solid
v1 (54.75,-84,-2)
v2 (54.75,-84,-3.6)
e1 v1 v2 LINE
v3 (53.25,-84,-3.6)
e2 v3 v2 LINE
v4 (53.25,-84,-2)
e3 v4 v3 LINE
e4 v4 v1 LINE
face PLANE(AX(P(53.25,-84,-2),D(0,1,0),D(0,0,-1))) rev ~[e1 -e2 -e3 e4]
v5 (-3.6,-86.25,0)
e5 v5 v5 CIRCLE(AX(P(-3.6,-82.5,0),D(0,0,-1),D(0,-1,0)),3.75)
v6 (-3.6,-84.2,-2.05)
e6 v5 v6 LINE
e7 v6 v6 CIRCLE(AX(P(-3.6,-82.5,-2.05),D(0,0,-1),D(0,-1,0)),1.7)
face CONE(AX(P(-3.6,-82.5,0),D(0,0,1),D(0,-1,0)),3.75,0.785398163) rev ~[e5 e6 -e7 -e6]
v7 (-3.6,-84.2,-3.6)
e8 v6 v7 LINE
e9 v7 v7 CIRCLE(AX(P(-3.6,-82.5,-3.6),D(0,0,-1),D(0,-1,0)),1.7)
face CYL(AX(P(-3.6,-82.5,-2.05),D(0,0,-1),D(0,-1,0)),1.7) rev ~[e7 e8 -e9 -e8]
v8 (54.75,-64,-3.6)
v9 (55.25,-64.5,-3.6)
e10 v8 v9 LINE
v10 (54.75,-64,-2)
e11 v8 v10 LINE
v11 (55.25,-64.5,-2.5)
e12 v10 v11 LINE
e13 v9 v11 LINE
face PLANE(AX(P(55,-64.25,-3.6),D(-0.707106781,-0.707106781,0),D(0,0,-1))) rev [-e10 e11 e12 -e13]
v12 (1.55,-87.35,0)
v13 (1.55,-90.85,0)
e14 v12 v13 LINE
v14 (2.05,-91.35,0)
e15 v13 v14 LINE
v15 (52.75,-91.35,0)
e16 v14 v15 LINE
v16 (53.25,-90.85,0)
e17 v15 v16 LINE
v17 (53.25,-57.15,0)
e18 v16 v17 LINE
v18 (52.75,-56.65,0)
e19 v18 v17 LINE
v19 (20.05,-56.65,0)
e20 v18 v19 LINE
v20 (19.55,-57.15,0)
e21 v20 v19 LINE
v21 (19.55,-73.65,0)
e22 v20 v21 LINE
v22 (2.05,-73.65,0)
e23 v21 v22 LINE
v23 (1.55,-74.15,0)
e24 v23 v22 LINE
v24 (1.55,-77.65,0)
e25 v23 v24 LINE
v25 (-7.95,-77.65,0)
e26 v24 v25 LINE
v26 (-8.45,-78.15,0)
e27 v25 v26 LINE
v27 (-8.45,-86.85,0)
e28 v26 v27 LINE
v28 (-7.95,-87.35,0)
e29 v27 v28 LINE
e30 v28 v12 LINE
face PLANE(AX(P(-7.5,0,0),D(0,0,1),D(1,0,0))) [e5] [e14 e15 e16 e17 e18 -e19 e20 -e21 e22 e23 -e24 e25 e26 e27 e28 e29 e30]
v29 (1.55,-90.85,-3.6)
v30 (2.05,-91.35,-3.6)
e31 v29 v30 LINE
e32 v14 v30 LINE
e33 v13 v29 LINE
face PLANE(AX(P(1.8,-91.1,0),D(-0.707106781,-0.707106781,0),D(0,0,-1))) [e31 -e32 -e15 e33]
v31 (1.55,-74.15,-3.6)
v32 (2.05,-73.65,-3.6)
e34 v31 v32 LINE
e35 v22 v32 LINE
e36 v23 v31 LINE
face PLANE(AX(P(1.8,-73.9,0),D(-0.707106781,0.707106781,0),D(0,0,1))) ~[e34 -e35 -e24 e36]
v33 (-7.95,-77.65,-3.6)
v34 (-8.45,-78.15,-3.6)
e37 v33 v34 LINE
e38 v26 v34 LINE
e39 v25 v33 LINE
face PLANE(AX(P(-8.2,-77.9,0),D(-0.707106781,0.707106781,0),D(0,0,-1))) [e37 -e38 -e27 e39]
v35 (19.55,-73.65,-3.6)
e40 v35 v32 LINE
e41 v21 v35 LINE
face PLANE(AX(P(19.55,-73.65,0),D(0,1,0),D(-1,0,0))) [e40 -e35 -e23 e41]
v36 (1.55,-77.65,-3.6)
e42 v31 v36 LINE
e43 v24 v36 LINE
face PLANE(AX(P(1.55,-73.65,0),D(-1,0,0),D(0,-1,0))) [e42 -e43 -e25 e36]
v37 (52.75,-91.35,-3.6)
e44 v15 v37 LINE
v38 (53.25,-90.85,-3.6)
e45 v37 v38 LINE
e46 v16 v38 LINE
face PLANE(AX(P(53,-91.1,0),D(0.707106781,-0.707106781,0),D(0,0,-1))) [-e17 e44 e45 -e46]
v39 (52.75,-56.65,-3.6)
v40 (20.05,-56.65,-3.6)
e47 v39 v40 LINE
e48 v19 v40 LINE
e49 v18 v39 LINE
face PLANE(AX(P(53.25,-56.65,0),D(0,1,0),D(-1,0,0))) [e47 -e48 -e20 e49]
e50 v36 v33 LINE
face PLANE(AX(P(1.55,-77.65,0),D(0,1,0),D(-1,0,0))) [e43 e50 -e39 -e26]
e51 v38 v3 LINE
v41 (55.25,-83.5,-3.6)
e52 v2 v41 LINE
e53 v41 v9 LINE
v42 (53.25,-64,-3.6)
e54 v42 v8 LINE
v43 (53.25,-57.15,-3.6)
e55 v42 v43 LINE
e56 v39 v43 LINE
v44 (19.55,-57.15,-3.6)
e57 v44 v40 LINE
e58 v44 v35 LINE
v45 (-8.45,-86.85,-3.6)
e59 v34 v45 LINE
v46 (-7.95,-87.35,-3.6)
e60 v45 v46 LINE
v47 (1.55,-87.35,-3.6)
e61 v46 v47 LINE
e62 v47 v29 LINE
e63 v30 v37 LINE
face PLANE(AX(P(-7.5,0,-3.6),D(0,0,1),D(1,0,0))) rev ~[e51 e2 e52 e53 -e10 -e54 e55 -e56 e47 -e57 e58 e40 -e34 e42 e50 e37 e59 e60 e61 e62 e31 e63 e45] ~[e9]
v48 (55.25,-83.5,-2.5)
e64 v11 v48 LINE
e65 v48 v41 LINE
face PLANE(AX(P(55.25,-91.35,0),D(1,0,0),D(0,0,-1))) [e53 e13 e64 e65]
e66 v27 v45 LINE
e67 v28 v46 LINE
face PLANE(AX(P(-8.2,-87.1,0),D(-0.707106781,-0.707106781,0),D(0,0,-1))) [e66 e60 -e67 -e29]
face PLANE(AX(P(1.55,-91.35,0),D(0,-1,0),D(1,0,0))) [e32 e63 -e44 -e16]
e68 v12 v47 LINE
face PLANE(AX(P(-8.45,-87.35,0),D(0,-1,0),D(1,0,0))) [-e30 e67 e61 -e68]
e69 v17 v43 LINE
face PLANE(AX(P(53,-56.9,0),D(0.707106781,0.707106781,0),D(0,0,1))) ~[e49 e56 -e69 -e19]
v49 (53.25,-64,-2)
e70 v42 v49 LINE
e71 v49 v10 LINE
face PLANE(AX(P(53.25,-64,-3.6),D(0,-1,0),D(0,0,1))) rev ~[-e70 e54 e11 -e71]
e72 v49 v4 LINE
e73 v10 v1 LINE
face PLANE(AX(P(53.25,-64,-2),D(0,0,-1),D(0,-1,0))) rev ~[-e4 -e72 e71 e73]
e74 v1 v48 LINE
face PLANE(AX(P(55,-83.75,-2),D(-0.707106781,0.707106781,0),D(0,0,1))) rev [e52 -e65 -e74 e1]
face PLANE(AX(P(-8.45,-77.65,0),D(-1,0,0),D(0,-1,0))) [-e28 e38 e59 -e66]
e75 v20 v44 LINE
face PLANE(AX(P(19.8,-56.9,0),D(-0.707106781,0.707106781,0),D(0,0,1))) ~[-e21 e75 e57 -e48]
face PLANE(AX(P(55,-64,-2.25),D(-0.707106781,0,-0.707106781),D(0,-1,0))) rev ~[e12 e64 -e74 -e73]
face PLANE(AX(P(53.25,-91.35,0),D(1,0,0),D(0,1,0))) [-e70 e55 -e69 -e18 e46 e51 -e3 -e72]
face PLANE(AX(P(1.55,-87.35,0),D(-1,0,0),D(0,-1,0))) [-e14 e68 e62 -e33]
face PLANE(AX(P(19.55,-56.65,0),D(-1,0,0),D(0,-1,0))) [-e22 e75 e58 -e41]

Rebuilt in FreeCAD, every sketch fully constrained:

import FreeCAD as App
import Part
import Sketcher

V = App.Vector


def edges_at(feature, points):
    """Names of the edges that pass closest to the given points."""
    edges = feature.Shape.Edges
    near = lambda p: min(range(len(edges)), key=lambda i: edges[i].distToShape(Part.Vertex(*p))[0])
    return sorted({f"Edge{near(p) + 1}" for p in points})


def add_polygon(sketch, points):
    """Adds a closed chain of lines whose ends are joined by coincident constraints."""
    first, n = sketch.GeometryCount, len(points)
    for a, b in zip(points, points[1:] + points[:1]):
        sketch.addGeometry(Part.LineSegment(App.Vector(*a, 0), App.Vector(*b, 0)), False)
    for i in range(n):
        sketch.addConstraint(Sketcher.Constraint("Coincident", first + i, 2, first + (i + 1) % n, 1))

doc = App.newDocument("Part")
body = doc.addObject("PartDesign::Body", "Body")

# Sketch on XY plane
sketch1 = doc.addObject("Sketcher::SketchObject", "Sketch")
body.addObject(sketch1)
sketch1.AttachmentSupport = (doc.XY_Plane, [""])
sketch1.MapMode = "FlatFace"
add_polygon(sketch1, [(1.6, -77.7), (-8.4, -77.7), (-8.4, -87.3), (1.6, -87.3), (1.6, -91.3), (53.2, -91.3), (53.2, -56.6), (19.6, -56.6), (19.6, -73.7), (1.6, -73.7)])  # lines 0-9
sketch1.addConstraint(Sketcher.Constraint("Horizontal", 0))
sketch1.addConstraint(Sketcher.Constraint("Vertical", 1))
sketch1.addConstraint(Sketcher.Constraint("Horizontal", 2))
sketch1.addConstraint(Sketcher.Constraint("Vertical", 3))
sketch1.addConstraint(Sketcher.Constraint("Horizontal", 4))
sketch1.addConstraint(Sketcher.Constraint("Vertical", 5))
sketch1.addConstraint(Sketcher.Constraint("Horizontal", 6))
sketch1.addConstraint(Sketcher.Constraint("Vertical", 7))
sketch1.addConstraint(Sketcher.Constraint("Horizontal", 8))
sketch1.addConstraint(Sketcher.Constraint("Vertical", 9))
sketch1.addConstraint(Sketcher.Constraint("Vertical", 3, 2, 8, 2))
sketch1.addConstraint(Sketcher.Constraint("Equal", 3, 9))
sketch1.addConstraint(Sketcher.Constraint("DistanceX", 0, 2, 0, 1, 10.0))
sketch1.addConstraint(Sketcher.Constraint("DistanceX", 8, 2, 8, 1, 18.0))
sketch1.addConstraint(Sketcher.Constraint("DistanceY", 3, 2, 3, 1, 4.0))
sketch1.addConstraint(Sketcher.Constraint("DistanceY", 7, 2, 7, 1, 17.0))
sketch1.addConstraint(Sketcher.Constraint("DistanceX", 4, 1, 4, 2, 51.7))
sketch1.addConstraint(Sketcher.Constraint("DistanceY", 1, 2, 1, 1, 9.7))
sketch1.addConstraint(Sketcher.Constraint("DistanceX", 0, 2, -1, 1, 8.45))
sketch1.addConstraint(Sketcher.Constraint("DistanceY", 0, 2, -1, 1, 77.65))
pad1 = doc.addObject("PartDesign::Pad", "Pad")
body.addObject(pad1)
pad1.Profile = sketch1
pad1.Length = 3.6
pad1.Reversed = True

# Sketch on XY plane
sketch2 = doc.addObject("Sketcher::SketchObject", "Sketch001")
body.addObject(sketch2)
sketch2.AttachmentSupport = (doc.XY_Plane, [""])
sketch2.MapMode = "FlatFace"
sketch2.addGeometry(Part.Circle(V(-3.6, -82.5, 0), V(0, 0, 1), 1.7), False)
sketch2.addConstraint(Sketcher.Constraint("Diameter", 0, 3.4))
sketch2.addConstraint(Sketcher.Constraint("DistanceX", 0, 3, -1, 1, 3.6))
sketch2.addConstraint(Sketcher.Constraint("DistanceY", 0, 3, -1, 1, 82.5))
doc.recompute()
hole = doc.addObject("PartDesign::Hole", "Hole")
body.addObject(hole)
hole.Profile = sketch2
hole.ThreadType = "None"
hole.Diameter = 3.4
hole.DepthType = "Dimension"
hole.Depth = 8
hole.DrillPoint = "Flat"
hole.HoleCutType = "Countersink"
hole.HoleCutDiameter = 7.5
hole.HoleCutCountersinkAngle = 90

# Sketch on YZ plane
sketch3 = doc.addObject("Sketcher::SketchObject", "Sketch002")
body.addObject(sketch3)
sketch3.AttachmentSupport = (doc.YZ_Plane, [""])
sketch3.MapMode = "FlatFace"
sketch3.AttachmentOffset = App.Placement(V(0, 0, 53.25), App.Rotation())
add_polygon(sketch3, [(-64, -3.6), (-64, -2), (-84, -2), (-84, -3.6)])  # lines 0-3
sketch3.addConstraint(Sketcher.Constraint("Vertical", 0))
sketch3.addConstraint(Sketcher.Constraint("Horizontal", 1))
sketch3.addConstraint(Sketcher.Constraint("Vertical", 2))
sketch3.addConstraint(Sketcher.Constraint("Horizontal", 3))
sketch3.addConstraint(Sketcher.Constraint("DistanceX", 1, 2, 1, 1, 20.0))
sketch3.addConstraint(Sketcher.Constraint("DistanceY", 0, 1, 0, 2, 1.6))
sketch3.addConstraint(Sketcher.Constraint("DistanceX", 0, 2, -1, 1, 64.0))
sketch3.addConstraint(Sketcher.Constraint("DistanceY", 0, 2, -1, 1, 2.0))
pad2 = doc.addObject("PartDesign::Pad", "Pad001")
body.addObject(pad2)
pad2.Profile = sketch3
pad2.Length = 2
doc.recompute()

chamfer = doc.addObject("PartDesign::Chamfer", "Chamfer")
body.addObject(chamfer)
chamfer.Base = (pad2, edges_at(pad2, [
    (-8.45, -87.35, -1.8),
    (-8.45, -77.65, -1.8),
    (1.55, -73.65, -1.8),
    (1.55, -91.35, -1.8),
    (19.55, -56.65, -1.8),
    (53.25, -56.65, -1.8),
    (53.25, -91.35, -1.8),
]))
chamfer.Size = 0.5
doc.recompute()

chamfer2 = doc.addObject("PartDesign::Chamfer", "Chamfer001")
body.addObject(chamfer2)
chamfer2.Base = (chamfer, edges_at(chamfer, [(55.25, -84, -2.8), (55.25, -64, -2.8), (55.25, -74, -2)]))
chamfer2.Size = 0.5

doc.recompute()
